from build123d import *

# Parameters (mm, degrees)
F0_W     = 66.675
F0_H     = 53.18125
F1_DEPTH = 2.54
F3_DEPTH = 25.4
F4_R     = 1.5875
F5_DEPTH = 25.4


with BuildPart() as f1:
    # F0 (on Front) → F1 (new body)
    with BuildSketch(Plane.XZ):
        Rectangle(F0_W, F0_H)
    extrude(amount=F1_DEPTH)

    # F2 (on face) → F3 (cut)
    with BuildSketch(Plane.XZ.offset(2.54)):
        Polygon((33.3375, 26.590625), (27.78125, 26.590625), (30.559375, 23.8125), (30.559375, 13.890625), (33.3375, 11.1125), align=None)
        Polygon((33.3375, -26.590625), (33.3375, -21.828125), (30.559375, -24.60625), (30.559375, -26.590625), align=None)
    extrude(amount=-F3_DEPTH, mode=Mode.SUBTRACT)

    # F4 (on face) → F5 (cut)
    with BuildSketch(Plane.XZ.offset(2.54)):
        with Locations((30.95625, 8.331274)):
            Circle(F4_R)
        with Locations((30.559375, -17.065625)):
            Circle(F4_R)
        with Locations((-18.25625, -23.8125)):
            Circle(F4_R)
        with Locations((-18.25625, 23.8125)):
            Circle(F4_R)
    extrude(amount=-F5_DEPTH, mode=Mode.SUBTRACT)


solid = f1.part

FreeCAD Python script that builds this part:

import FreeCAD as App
import Part
import Sketcher
Q = App.Units.Quantity


def add_polygon(sketch, points):
    """Adds a closed chain of lines whose ends are joined by coincident constraints."""
    first, n = sketch.GeometryCount, len(points)
    for a, b in zip(points, points[1:] + points[:1]):
        sketch.addGeometry(Part.LineSegment(App.Vector(*a, 0), App.Vector(*b, 0)), False)
    for i in range(n):
        sketch.addConstraint(Sketcher.Constraint("Coincident", first + i, 2, first + (i + 1) % n, 1))

doc = App.newDocument("Part")
params = doc.addObject("Spreadsheet::Sheet", "Params")
for row, (alias, value) in enumerate([
    ("sketch1_width", "2.625 in"),
    ("sketch1_height", "2.09375 in"),
    ("pad1_length", "0.1 in"),
    ("sketch2_width", "0.21875 in"),
    ("sketch2_height", "0.1875 in"),
    ("pocket1_length", "1 in"),
    ("sketch3_diameter", "0.125 in"),
    ("pocket2_length", "1 in"),
], start=1):
    params.set(f"A{row}", alias)
    params.set(f"B{row}", "=" + value)
    params.setAlias(f"B{row}", alias)

body = doc.addObject("PartDesign::Body", "Body")

# Sketch on XZ plane
sketch1 = doc.addObject("Sketcher::SketchObject", "Sketch")
body.addObject(sketch1)
sketch1.AttachmentSupport = (doc.XZ_Plane, [""])
sketch1.MapMode = "FlatFace"
add_polygon(sketch1, [(-33, 27), (-33, -27), (33, -27), (33, 27)])  # lines 0-3
sketch1.addConstraint([
    Sketcher.Constraint("Vertical", 0),
    Sketcher.Constraint("Horizontal", 1),
    Sketcher.Constraint("Vertical", 2),
    Sketcher.Constraint("Horizontal", 3),
    Sketcher.Constraint("Symmetric", 0, 2, 2, 2, -1, 1),
    Sketcher.Constraint("DistanceX", 1, 1, 1, 2, Q("2.625 in")),
    Sketcher.Constraint("DistanceY", 0, 2, 0, 1, Q("2.09375 in")),
])
sketch1.setExpression("Constraints[9]", "Params.sketch1_width")
sketch1.setExpression("Constraints[10]", "Params.sketch1_height")
pad1 = doc.addObject("PartDesign::Pad", "Pad")
body.addObject(pad1)
pad1.Profile = sketch1
pad1.setExpression("Length", "Params.pad1_length")

# Sketch on XZ plane
sketch2 = doc.addObject("Sketcher::SketchObject", "Sketch001")
body.addObject(sketch2)
sketch2.AttachmentSupport = (doc.XZ_Plane, [""])
sketch2.MapMode = "FlatFace"
sketch2.AttachmentOffset = App.Placement(App.Vector(0, 0, 0.1 * 25.4), App.Rotation())
add_polygon(sketch2, [(33.3, 26.6), (27.8, 26.6), (30.6, 23.8), (30.6, 13.9), (33.3, 11.1)])  # lines 0-4
add_polygon(sketch2, [(33.3, -26.6), (33.3, -21.8), (30.6, -24.6), (30.6, -26.6)])  # lines 5-8
sketch2.addConstraint([
    Sketcher.Constraint("Horizontal", 0),
    Sketcher.Constraint("Vertical", 2),
    Sketcher.Constraint("Vertical", 4),
    Sketcher.Constraint("Vertical", 5),
    Sketcher.Constraint("Vertical", 7),
    Sketcher.Constraint("Horizontal", 8),
    Sketcher.Constraint("Symmetric", 4, 2, 8, 2, -1),
    Sketcher.Constraint("Parallel", 1, 3),
    Sketcher.Constraint("Perpendicular", 3, 6),
    Sketcher.Constraint("Vertical", 2, 2, 6, 2),
    Sketcher.Constraint("Equal", 1, 3),
    Sketcher.Constraint("Equal", 3, 6),
    Sketcher.Constraint("DistanceY", 2, 2, 0, 2, Q("0.5 in")),
    Sketcher.Constraint("DistanceX", 0, 2, 0, 1, Q("0.21875 in")),
    Sketcher.Constraint("DistanceY", 5, 1, 5, 2, Q("0.1875 in")),
    Sketcher.Constraint("DistanceX", -1, 1, 0, 2, Q("1.09375 in")),
    Sketcher.Constraint("DistanceY", -1, 1, 0, 2, Q("1.046875 in")),
])
sketch2.setExpression("Constraints[22]", "Params.sketch2_width")
sketch2.setExpression("Constraints[23]", "Params.sketch2_height")
pocket1 = doc.addObject("PartDesign::Pocket", "Pocket")
body.addObject(pocket1)
pocket1.Profile = sketch2
pocket1.setExpression("Length", "Params.pocket1_length")

# Sketch on XZ plane
sketch3 = doc.addObject("Sketcher::SketchObject", "Sketch002")
body.addObject(sketch3)
sketch3.AttachmentSupport = (doc.XZ_Plane, [""])
sketch3.MapMode = "FlatFace"
sketch3.AttachmentOffset = App.Placement(App.Vector(0, 0, 0.1 * 25.4), App.Rotation())
sketch3.addGeometry([
    Part.Circle(App.Vector(31, 8.3, 0), App.Vector(0, 0, 1), 1.6),
    Part.Circle(App.Vector(30.6, -17.1, 0), App.Vector(0, 0, 1), 1.6),
    Part.Circle(App.Vector(-18.3, -23.8, 0), App.Vector(0, 0, 1), 1.6),
    Part.Circle(App.Vector(-18.3, 23.8, 0), App.Vector(0, 0, 1), 1.6),
], False)
sketch3.addConstraint([
    Sketcher.Constraint("Equal", 0, 1),
    Sketcher.Constraint("Equal", 1, 2),
    Sketcher.Constraint("Equal", 2, 3),
    Sketcher.Constraint("Symmetric", 2, 3, 3, 3, -1),
    Sketcher.Constraint("Diameter", 0, Q("0.125 in")),
    Sketcher.Constraint("DistanceX", -1, 1, 0, 3, Q("1.21875 in")),
    Sketcher.Constraint("DistanceX", -1, 1, 1, 3, Q("1.203125 in")),
    Sketcher.Constraint("DistanceY", 1, 3, -1, 1, Q("0.671875 in")),
    Sketcher.Constraint("DistanceX", 2, 3, -1, 1, Q("0.71875 in")),
    Sketcher.Constraint("DistanceY", 2, 3, -1, 1, Q("0.9375 in")),
    Sketcher.Constraint("DistanceY", 1, 3, 0, 3, Q("25.396899 mm")),
])
sketch3.setExpression("Constraints[4]", "Params.sketch3_diameter")
pocket2 = doc.addObject("PartDesign::Pocket", "Pocket001")
body.addObject(pocket2)
pocket2.Profile = sketch3
pocket2.setExpression("Length", "Params.pocket2_length")

doc.recompute()
